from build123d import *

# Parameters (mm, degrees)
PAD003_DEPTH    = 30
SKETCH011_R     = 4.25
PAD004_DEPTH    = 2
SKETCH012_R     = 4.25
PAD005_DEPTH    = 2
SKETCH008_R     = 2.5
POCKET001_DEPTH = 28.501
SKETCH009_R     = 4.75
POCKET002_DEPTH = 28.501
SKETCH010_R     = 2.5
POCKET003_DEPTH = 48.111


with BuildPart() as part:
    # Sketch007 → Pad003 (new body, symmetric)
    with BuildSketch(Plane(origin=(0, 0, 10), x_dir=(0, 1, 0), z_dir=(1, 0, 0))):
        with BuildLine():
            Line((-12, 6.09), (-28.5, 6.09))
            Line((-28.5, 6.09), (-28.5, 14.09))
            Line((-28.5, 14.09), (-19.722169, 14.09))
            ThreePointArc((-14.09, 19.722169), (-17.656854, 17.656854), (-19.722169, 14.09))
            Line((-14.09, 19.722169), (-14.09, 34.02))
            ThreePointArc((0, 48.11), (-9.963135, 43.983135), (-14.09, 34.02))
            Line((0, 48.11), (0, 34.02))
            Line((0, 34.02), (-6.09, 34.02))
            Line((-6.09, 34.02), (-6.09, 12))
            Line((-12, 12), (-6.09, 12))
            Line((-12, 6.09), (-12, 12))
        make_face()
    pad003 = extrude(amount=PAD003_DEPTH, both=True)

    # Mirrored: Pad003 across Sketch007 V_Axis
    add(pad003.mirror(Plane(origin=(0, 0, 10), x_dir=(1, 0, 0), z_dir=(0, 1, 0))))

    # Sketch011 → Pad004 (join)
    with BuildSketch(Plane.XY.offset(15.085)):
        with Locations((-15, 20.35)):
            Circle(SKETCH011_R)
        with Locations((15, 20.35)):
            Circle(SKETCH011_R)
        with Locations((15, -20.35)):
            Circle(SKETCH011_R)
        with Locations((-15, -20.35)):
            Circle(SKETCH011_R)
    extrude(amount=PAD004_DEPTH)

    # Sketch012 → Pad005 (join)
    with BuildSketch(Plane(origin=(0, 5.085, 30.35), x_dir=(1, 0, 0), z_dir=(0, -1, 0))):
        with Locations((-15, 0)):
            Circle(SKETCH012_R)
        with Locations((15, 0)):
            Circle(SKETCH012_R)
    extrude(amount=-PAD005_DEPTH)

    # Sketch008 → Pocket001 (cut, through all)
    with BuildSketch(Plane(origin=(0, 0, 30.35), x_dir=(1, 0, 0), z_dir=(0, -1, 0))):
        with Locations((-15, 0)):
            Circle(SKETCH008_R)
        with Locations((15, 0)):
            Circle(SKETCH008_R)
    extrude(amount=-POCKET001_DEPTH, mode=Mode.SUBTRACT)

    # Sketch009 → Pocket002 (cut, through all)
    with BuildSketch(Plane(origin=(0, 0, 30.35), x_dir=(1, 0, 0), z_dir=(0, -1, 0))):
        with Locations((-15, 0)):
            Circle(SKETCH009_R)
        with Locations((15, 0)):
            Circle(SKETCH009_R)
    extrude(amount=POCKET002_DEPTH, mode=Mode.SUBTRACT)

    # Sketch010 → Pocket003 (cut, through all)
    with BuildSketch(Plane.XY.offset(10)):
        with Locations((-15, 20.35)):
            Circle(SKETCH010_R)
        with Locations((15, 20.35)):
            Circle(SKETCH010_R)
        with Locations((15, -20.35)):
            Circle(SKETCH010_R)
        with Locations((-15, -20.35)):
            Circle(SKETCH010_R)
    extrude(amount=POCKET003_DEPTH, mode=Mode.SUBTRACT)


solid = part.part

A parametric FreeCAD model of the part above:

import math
import FreeCAD as App
import Part
import Sketcher

V = App.Vector

doc = App.newDocument("Part")
body = doc.addObject("PartDesign::Body", "Body")

sketch1 = body.newObject("Sketcher::SketchObject", "Sketch")
sketch1.AttachmentSupport = (doc.getObject("YZ_Plane"), [""])
sketch1.MapMode = "FlatFace"
sketch1.addGeometry([
    Part.LineSegment(V(-28, 16, 0), V(-12, 16, 0)),
    Part.LineSegment(V(-12, 16, 0), V(-12, 22, 0)),
    Part.LineSegment(V(-12, 22, 0), V(-6, 22, 0)),
    Part.LineSegment(V(-6, 22, 0), V(-6, 44, 0)),
    Part.LineSegment(V(-6, 44, 0), V(0, 44, 0)),
    Part.LineSegment(V(0, 44, 0), V(0, 58, 0)),
    Part.ArcOfCircle(Part.Circle(V(0, 44, 0), V(0, 0, 1), 14), math.radians(90), math.radians(180)),
    Part.LineSegment(V(-14, 44, 0), V(-14, 30, 0)),
    Part.ArcOfCircle(Part.Circle(V(-12, 22, 0), V(0, 0, 1), 8), math.radians(105), math.radians(165)),
    Part.LineSegment(V(-20, 24, 0), V(-28, 24, 0)),
    Part.LineSegment(V(-28, 24, 0), V(-28, 16, 0)),
], False)
sketch1.addConstraint([
    Sketcher.Constraint("Coincident", 0, 2, 1, 1),
    Sketcher.Constraint("Coincident", 1, 2, 2, 1),
    Sketcher.Constraint("Coincident", 2, 2, 3, 1),
    Sketcher.Constraint("Coincident", 3, 2, 4, 1),
    Sketcher.Constraint("Coincident", 4, 2, 5, 1),
    Sketcher.Constraint("Coincident", 5, 2, 6, 1),
    Sketcher.Constraint("Tangent", 6, 2, 7, 1),
    Sketcher.Constraint("Coincident", 7, 2, 8, 1),
    Sketcher.Constraint("Coincident", 8, 2, 9, 1),
    Sketcher.Constraint("Coincident", 9, 2, 10, 1),
    Sketcher.Constraint("Coincident", 10, 2, 0, 1),
    Sketcher.Constraint("Horizontal", 0),
    Sketcher.Constraint("Vertical", 1),
    Sketcher.Constraint("Horizontal", 2),
    Sketcher.Constraint("Vertical", 3),
    Sketcher.Constraint("Horizontal", 4),
    Sketcher.Constraint("Vertical", 5),
    Sketcher.Constraint("Vertical", 7),
    Sketcher.Constraint("Horizontal", 9),
    Sketcher.Constraint("Vertical", 10),
    Sketcher.Constraint("Coincident", 1, 2, 8, 3),
    Sketcher.Constraint("Coincident", 4, 2, 6, 3),
    Sketcher.Constraint("PointOnObject", 6, 3, -2),
    Sketcher.Constraint("Equal", 2, 1),
    Sketcher.Constraint("Radius", 8, 8.0),
    Sketcher.Constraint("DistanceY", 10, 2, 10, 1, 8.0),
    Sketcher.Constraint("Radius", 6, 14.089998),
    Sketcher.Constraint("DistanceX", 0, 1, 0, 2, 16.5),
    Sketcher.Constraint("DistanceX", 8, 3, -1, 1, 12.0),
    Sketcher.Constraint("DistanceY", -1, 1, 8, 3, 22.0),
    Sketcher.Constraint("DistanceX", 6, 2, 3, 2, 8.0),
    Sketcher.Constraint("DistanceY", 3, 1, 3, 2, 22.02),
])
pad1 = body.newObject("PartDesign::Pad", "Pad")
pad1.Profile = sketch1
pad1.Length = 60
pad1.Midplane = True
doc.recompute()

mirrored = body.newObject("PartDesign::Mirrored", "Mirrored")
mirrored.Originals = [pad1]
mirrored.MirrorPlane = (doc.getObject("XZ_Plane"), [""])
body.Tip = mirrored

sketch2 = body.newObject("Sketcher::SketchObject", "Sketch001")
sketch2.AttachmentSupport = (doc.getObject("XY_Plane"), [""])
sketch2.MapMode = "FlatFace"
sketch2.AttachmentOffset = App.Placement(V(0, 0, 15.085), App.Rotation())
sketch2.addGeometry([
    Part.Circle(V(-15, 20.4, 0), V(0, 0, 1), 4.2),
    Part.Circle(V(15, 20.4, 0), V(0, 0, 1), 4.2),
    Part.Circle(V(15, -20.4, 0), V(0, 0, 1), 4.2),
    Part.Circle(V(-15, -20.4, 0), V(0, 0, 1), 4.2),
], False)
sketch2.addConstraint([
    Sketcher.Constraint("Equal", 0, 1),
    Sketcher.Constraint("Equal", 1, 2),
    Sketcher.Constraint("Equal", 2, 3),
    Sketcher.Constraint("Symmetric", 0, 3, 2, 3, -1, 1),
    Sketcher.Constraint("Symmetric", 1, 3, 3, 3, -1, 1),
    Sketcher.Constraint("Symmetric", 0, 3, 1, 3, -2),
    Sketcher.Constraint("Diameter", 0, 8.5),
    Sketcher.Constraint("DistanceX", 0, 3, -1, 1, 15.0),
    Sketcher.Constraint("DistanceY", 2, 3, 1, 3, 40.7),
])
pad2 = body.newObject("PartDesign::Pad", "Pad001")
pad2.Profile = sketch2
pad2.Length = 2

sketch3 = body.newObject("Sketcher::SketchObject", "Sketch002")
sketch3.AttachmentSupport = (doc.getObject("XZ_Plane"), [""])
sketch3.MapMode = "FlatFace"
sketch3.AttachmentOffset = App.Placement(V(0, 0, -5.085), App.Rotation())
sketch3.addGeometry([
    Part.Circle(V(-15, 30.4, 0), V(0, 0, 1), 4.2),
    Part.Circle(V(15, 30.4, 0), V(0, 0, 1), 4.2),
], False)
sketch3.addConstraint([
    Sketcher.Constraint("Equal", 0, 1),
    Sketcher.Constraint("Symmetric", 0, 3, 1, 3, -2),
    Sketcher.Constraint("Diameter", 0, 8.5),
    Sketcher.Constraint("DistanceX", 0, 3, -1, 1, 15.0),
    Sketcher.Constraint("DistanceY", -1, 1, 0, 3, 30.35),
])
pad3 = body.newObject("PartDesign::Pad", "Pad002")
pad3.Profile = sketch3
pad3.Length = 2
pad3.Reversed = True

sketch4 = body.newObject("Sketcher::SketchObject", "Sketch003")
sketch4.AttachmentSupport = (doc.getObject("XZ_Plane"), [""])
sketch4.MapMode = "FlatFace"
sketch4.addGeometry([
    Part.Circle(V(-15, 30.4, 0), V(0, 0, 1), 2.5),
    Part.Circle(V(15, 30.4, 0), V(0, 0, 1), 2.5),
], False)
sketch4.addConstraint([
    Sketcher.Constraint("Equal", 0, 1),
    Sketcher.Constraint("Symmetric", 0, 3, 1, 3, -2),
    Sketcher.Constraint("Diameter", 0, 5.0),
    Sketcher.Constraint("DistanceX", 0, 3, -1, 1, 15.0),
    Sketcher.Constraint("DistanceY", -1, 1, 0, 3, 30.35),
])
pocket1 = body.newObject("PartDesign::Pocket", "Pocket")
pocket1.Profile = sketch4
pocket1.Type = "ThroughAll"

sketch5 = body.newObject("Sketcher::SketchObject", "Sketch004")
sketch5.AttachmentSupport = (doc.getObject("XZ_Plane"), [""])
sketch5.MapMode = "FlatFace"
sketch5.addGeometry([
    Part.Circle(V(-15, 30.4, 0), V(0, 0, 1), 4.8),
    Part.Circle(V(15, 30.4, 0), V(0, 0, 1), 4.8),
], False)
sketch5.addConstraint([
    Sketcher.Constraint("Equal", 0, 1),
    Sketcher.Constraint("Symmetric", 0, 3, 1, 3, -2),
    Sketcher.Constraint("Diameter", 0, 9.5),
    Sketcher.Constraint("DistanceX", 0, 3, -1, 1, 15.0),
    Sketcher.Constraint("DistanceY", -1, 1, 0, 3, 30.35),
])
pocket2 = body.newObject("PartDesign::Pocket", "Pocket001")
pocket2.Profile = sketch5
pocket2.Type = "ThroughAll"
pocket2.Reversed = True

sketch6 = body.newObject("Sketcher::SketchObject", "Sketch005")
sketch6.AttachmentSupport = (doc.getObject("XY_Plane"), [""])
sketch6.MapMode = "FlatFace"
sketch6.AttachmentOffset = App.Placement(V(0, 0, 10), App.Rotation())
sketch6.addGeometry([
    Part.Circle(V(-15, 20.4, 0), V(0, 0, 1), 2.5),
    Part.Circle(V(15, 20.4, 0), V(0, 0, 1), 2.5),
    Part.Circle(V(15, -20.4, 0), V(0, 0, 1), 2.5),
    Part.Circle(V(-15, -20.4, 0), V(0, 0, 1), 2.5),
], False)
sketch6.addConstraint([
    Sketcher.Constraint("Equal", 0, 1),
    Sketcher.Constraint("Equal", 1, 2),
    Sketcher.Constraint("Equal", 2, 3),
    Sketcher.Constraint("Symmetric", 0, 3, 2, 3, -1, 1),
    Sketcher.Constraint("Symmetric", 1, 3, 3, 3, -1, 1),
    Sketcher.Constraint("Symmetric", 0, 3, 1, 3, -2),
    Sketcher.Constraint("Diameter", 0, 5.0),
    Sketcher.Constraint("DistanceX", 0, 3, -1, 1, 15.0),
    Sketcher.Constraint("DistanceY", 2, 3, 1, 3, 40.7),
])
pocket3 = body.newObject("PartDesign::Pocket", "Pocket002")
pocket3.Profile = sketch6
pocket3.Type = "ThroughAll"
pocket3.Reversed = True

doc.recompute()
